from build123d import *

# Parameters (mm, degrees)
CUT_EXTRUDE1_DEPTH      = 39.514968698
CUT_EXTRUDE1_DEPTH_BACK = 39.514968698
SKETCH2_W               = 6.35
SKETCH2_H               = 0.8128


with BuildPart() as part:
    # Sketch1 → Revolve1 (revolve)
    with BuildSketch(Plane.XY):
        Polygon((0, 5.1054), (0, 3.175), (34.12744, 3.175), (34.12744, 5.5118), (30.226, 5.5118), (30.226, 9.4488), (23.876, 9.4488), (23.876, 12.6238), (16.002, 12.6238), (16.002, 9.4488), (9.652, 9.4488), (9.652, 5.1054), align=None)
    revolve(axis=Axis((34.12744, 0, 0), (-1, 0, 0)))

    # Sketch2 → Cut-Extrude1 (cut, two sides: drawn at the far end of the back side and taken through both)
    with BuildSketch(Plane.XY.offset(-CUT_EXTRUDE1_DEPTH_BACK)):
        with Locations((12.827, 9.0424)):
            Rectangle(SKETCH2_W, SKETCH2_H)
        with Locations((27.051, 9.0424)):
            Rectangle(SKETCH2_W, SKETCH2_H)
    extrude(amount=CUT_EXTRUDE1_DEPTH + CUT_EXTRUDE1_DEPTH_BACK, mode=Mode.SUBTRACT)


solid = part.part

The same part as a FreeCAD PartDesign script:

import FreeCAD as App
import Part
import Sketcher
from FreeCAD import Vector
Q = App.Units.Quantity

doc = App.newDocument("Part")
body = doc.addObject("PartDesign::Body", "Body")

# Sketch on XY plane
sketch1 = doc.addObject("Sketcher::SketchObject", "Sketch")
body.addObject(sketch1)
sketch1.AttachmentSupport = (doc.XY_Plane, [""])
sketch1.MapMode = "FlatFace"
sketch1.addGeometry(Part.LineSegment(Vector(0, 5.1, 0), Vector(0, 3.2, 0)), False)
sketch1.addGeometry(Part.LineSegment(Vector(0, 3.2, 0), Vector(34.1, 3.2, 0)), False)
sketch1.addGeometry(Part.LineSegment(Vector(34.1, 3.2, 0), Vector(34.1, 5.5, 0)), False)
sketch1.addGeometry(Part.LineSegment(Vector(34.1, 5.5, 0), Vector(30.2, 5.5, 0)), False)
sketch1.addGeometry(Part.LineSegment(Vector(30.2, 5.5, 0), Vector(30.2, 9.4, 0)), False)
sketch1.addGeometry(Part.LineSegment(Vector(30.2, 9.4, 0), Vector(23.9, 9.4, 0)), False)
sketch1.addGeometry(Part.LineSegment(Vector(23.9, 9.4, 0), Vector(23.9, 12.6, 0)), False)
sketch1.addGeometry(Part.LineSegment(Vector(23.9, 12.6, 0), Vector(16, 12.6, 0)), False)
sketch1.addGeometry(Part.LineSegment(Vector(16, 12.6, 0), Vector(16, 9.4, 0)), False)
sketch1.addGeometry(Part.LineSegment(Vector(16, 9.4, 0), Vector(9.7, 9.4, 0)), False)
sketch1.addGeometry(Part.LineSegment(Vector(9.7, 9.4, 0), Vector(9.7, 5.1, 0)), False)
sketch1.addGeometry(Part.LineSegment(Vector(9.7, 5.1, 0), Vector(0, 5.1, 0)), False)
sketch1.addConstraint(Sketcher.Constraint("Coincident", 0, 2, 1, 1))
sketch1.addConstraint(Sketcher.Constraint("Coincident", 1, 2, 2, 1))
sketch1.addConstraint(Sketcher.Constraint("Coincident", 2, 2, 3, 1))
sketch1.addConstraint(Sketcher.Constraint("Coincident", 3, 2, 4, 1))
sketch1.addConstraint(Sketcher.Constraint("Coincident", 4, 2, 5, 1))
sketch1.addConstraint(Sketcher.Constraint("Coincident", 5, 2, 6, 1))
sketch1.addConstraint(Sketcher.Constraint("Coincident", 6, 2, 7, 1))
sketch1.addConstraint(Sketcher.Constraint("Coincident", 7, 2, 8, 1))
sketch1.addConstraint(Sketcher.Constraint("Coincident", 8, 2, 9, 1))
sketch1.addConstraint(Sketcher.Constraint("Coincident", 9, 2, 10, 1))
sketch1.addConstraint(Sketcher.Constraint("Coincident", 10, 2, 11, 1))
sketch1.addConstraint(Sketcher.Constraint("Coincident", 11, 2, 0, 1))
sketch1.addConstraint(Sketcher.Constraint("Vertical", 0))
sketch1.addConstraint(Sketcher.Constraint("Horizontal", 1))
sketch1.addConstraint(Sketcher.Constraint("Vertical", 2))
sketch1.addConstraint(Sketcher.Constraint("Horizontal", 3))
sketch1.addConstraint(Sketcher.Constraint("Vertical", 4))
sketch1.addConstraint(Sketcher.Constraint("Horizontal", 5))
sketch1.addConstraint(Sketcher.Constraint("Vertical", 6))
sketch1.addConstraint(Sketcher.Constraint("Horizontal", 7))
sketch1.addConstraint(Sketcher.Constraint("Vertical", 8))
sketch1.addConstraint(Sketcher.Constraint("Horizontal", 9))
sketch1.addConstraint(Sketcher.Constraint("Vertical", 10))
sketch1.addConstraint(Sketcher.Constraint("Horizontal", 11))
sketch1.addConstraint(Sketcher.Constraint("PointOnObject", 0, 2, -2))
sketch1.addConstraint(Sketcher.Constraint("Horizontal", 5, 2, 8, 2))
sketch1.addConstraint(Sketcher.Constraint("Equal", 5, 9))
sketch1.addConstraint(Sketcher.Constraint("DistanceX", 5, 2, 5, 1, Q("0.25 in")))
sketch1.addConstraint(Sketcher.Constraint("DistanceX", 7, 2, 7, 1, Q("0.31 in")))
sketch1.addConstraint(Sketcher.Constraint("DistanceX", 11, 2, 11, 1, Q("0.38 in")))
sketch1.addConstraint(Sketcher.Constraint("DistanceY", 0, 2, 0, 1, Q("0.076 in")))
sketch1.addConstraint(Sketcher.Constraint("DistanceY", 2, 1, 2, 2, Q("0.092 in")))
sketch1.addConstraint(Sketcher.Constraint("DistanceY", 4, 1, 4, 2, Q("0.155 in")))
sketch1.addConstraint(Sketcher.Constraint("DistanceY", 6, 1, 6, 2, Q("0.125 in")))
sketch1.addConstraint(Sketcher.Constraint("DistanceX", 1, 1, 1, 2, Q("1.3436 in")))
sketch1.addConstraint(Sketcher.Constraint("DistanceY", -1, 1, 0, 2, Q("0.125 in")))
revolution = doc.addObject("PartDesign::Revolution", "Revolution")
body.addObject(revolution)
revolution.Profile = sketch1
revolution.ReferenceAxis = (sketch1, ["H_Axis"])
revolution.Angle = 360

# Sketch on XY plane
sketch2 = doc.addObject("Sketcher::SketchObject", "Sketch001")
body.addObject(sketch2)
sketch2.AttachmentSupport = (doc.XY_Plane, [""])
sketch2.MapMode = "FlatFace"
sketch2.addGeometry(Part.LineSegment(Vector(9.7, 9.4, 0), Vector(9.7, 8.6, 0)), False)
sketch2.addGeometry(Part.LineSegment(Vector(9.7, 8.6, 0), Vector(16, 8.6, 0)), False)
sketch2.addGeometry(Part.LineSegment(Vector(16, 8.6, 0), Vector(16, 9.4, 0)), False)
sketch2.addGeometry(Part.LineSegment(Vector(16, 9.4, 0), Vector(9.7, 9.4, 0)), False)
sketch2.addGeometry(Part.LineSegment(Vector(23.9, 9.4, 0), Vector(23.9, 8.6, 0)), False)
sketch2.addGeometry(Part.LineSegment(Vector(23.9, 8.6, 0), Vector(30.2, 8.6, 0)), False)
sketch2.addGeometry(Part.LineSegment(Vector(30.2, 8.6, 0), Vector(30.2, 9.4, 0)), False)
sketch2.addGeometry(Part.LineSegment(Vector(30.2, 9.4, 0), Vector(23.9, 9.4, 0)), False)
sketch2.addConstraint(Sketcher.Constraint("Coincident", 0, 2, 1, 1))
sketch2.addConstraint(Sketcher.Constraint("Coincident", 1, 2, 2, 1))
sketch2.addConstraint(Sketcher.Constraint("Coincident", 2, 2, 3, 1))
sketch2.addConstraint(Sketcher.Constraint("Coincident", 3, 2, 0, 1))
sketch2.addConstraint(Sketcher.Constraint("Coincident", 4, 2, 5, 1))
sketch2.addConstraint(Sketcher.Constraint("Coincident", 5, 2, 6, 1))
sketch2.addConstraint(Sketcher.Constraint("Coincident", 6, 2, 7, 1))
sketch2.addConstraint(Sketcher.Constraint("Coincident", 7, 2, 4, 1))
sketch2.addConstraint(Sketcher.Constraint("Vertical", 0))
sketch2.addConstraint(Sketcher.Constraint("Horizontal", 1))
sketch2.addConstraint(Sketcher.Constraint("Vertical", 2))
sketch2.addConstraint(Sketcher.Constraint("Horizontal", 3))
sketch2.addConstraint(Sketcher.Constraint("Vertical", 4))
sketch2.addConstraint(Sketcher.Constraint("Horizontal", 5))
sketch2.addConstraint(Sketcher.Constraint("Vertical", 6))
sketch2.addConstraint(Sketcher.Constraint("Horizontal", 7))
sketch2.addConstraint(Sketcher.Constraint("Horizontal", 1, 2, 4, 2))
sketch2.addConstraint(Sketcher.Constraint("Horizontal", 3, 2, 6, 2))
sketch2.addConstraint(Sketcher.Constraint("Equal", 3, 5))
sketch2.addConstraint(Sketcher.Constraint("DistanceX", 1, 1, 1, 2, Q("0.25 in")))
sketch2.addConstraint(Sketcher.Constraint("DistanceY", 0, 2, 0, 1, Q("0.032 in")))
sketch2.addConstraint(Sketcher.Constraint("DistanceX", -1, 1, 0, 2, Q("0.38 in")))
sketch2.addConstraint(Sketcher.Constraint("DistanceY", -1, 1, 0, 2, Q("0.34 in")))
sketch2.addConstraint(Sketcher.Constraint("DistanceX", -1, 1, 4, 2, Q("0.94 in")))
pocket1 = doc.addObject("PartDesign::Pocket", "Pocket")
body.addObject(pocket1)
pocket1.Profile = sketch2
pocket1.Type = "ThroughAll"
pocket1.Midplane = True

doc.recompute()
